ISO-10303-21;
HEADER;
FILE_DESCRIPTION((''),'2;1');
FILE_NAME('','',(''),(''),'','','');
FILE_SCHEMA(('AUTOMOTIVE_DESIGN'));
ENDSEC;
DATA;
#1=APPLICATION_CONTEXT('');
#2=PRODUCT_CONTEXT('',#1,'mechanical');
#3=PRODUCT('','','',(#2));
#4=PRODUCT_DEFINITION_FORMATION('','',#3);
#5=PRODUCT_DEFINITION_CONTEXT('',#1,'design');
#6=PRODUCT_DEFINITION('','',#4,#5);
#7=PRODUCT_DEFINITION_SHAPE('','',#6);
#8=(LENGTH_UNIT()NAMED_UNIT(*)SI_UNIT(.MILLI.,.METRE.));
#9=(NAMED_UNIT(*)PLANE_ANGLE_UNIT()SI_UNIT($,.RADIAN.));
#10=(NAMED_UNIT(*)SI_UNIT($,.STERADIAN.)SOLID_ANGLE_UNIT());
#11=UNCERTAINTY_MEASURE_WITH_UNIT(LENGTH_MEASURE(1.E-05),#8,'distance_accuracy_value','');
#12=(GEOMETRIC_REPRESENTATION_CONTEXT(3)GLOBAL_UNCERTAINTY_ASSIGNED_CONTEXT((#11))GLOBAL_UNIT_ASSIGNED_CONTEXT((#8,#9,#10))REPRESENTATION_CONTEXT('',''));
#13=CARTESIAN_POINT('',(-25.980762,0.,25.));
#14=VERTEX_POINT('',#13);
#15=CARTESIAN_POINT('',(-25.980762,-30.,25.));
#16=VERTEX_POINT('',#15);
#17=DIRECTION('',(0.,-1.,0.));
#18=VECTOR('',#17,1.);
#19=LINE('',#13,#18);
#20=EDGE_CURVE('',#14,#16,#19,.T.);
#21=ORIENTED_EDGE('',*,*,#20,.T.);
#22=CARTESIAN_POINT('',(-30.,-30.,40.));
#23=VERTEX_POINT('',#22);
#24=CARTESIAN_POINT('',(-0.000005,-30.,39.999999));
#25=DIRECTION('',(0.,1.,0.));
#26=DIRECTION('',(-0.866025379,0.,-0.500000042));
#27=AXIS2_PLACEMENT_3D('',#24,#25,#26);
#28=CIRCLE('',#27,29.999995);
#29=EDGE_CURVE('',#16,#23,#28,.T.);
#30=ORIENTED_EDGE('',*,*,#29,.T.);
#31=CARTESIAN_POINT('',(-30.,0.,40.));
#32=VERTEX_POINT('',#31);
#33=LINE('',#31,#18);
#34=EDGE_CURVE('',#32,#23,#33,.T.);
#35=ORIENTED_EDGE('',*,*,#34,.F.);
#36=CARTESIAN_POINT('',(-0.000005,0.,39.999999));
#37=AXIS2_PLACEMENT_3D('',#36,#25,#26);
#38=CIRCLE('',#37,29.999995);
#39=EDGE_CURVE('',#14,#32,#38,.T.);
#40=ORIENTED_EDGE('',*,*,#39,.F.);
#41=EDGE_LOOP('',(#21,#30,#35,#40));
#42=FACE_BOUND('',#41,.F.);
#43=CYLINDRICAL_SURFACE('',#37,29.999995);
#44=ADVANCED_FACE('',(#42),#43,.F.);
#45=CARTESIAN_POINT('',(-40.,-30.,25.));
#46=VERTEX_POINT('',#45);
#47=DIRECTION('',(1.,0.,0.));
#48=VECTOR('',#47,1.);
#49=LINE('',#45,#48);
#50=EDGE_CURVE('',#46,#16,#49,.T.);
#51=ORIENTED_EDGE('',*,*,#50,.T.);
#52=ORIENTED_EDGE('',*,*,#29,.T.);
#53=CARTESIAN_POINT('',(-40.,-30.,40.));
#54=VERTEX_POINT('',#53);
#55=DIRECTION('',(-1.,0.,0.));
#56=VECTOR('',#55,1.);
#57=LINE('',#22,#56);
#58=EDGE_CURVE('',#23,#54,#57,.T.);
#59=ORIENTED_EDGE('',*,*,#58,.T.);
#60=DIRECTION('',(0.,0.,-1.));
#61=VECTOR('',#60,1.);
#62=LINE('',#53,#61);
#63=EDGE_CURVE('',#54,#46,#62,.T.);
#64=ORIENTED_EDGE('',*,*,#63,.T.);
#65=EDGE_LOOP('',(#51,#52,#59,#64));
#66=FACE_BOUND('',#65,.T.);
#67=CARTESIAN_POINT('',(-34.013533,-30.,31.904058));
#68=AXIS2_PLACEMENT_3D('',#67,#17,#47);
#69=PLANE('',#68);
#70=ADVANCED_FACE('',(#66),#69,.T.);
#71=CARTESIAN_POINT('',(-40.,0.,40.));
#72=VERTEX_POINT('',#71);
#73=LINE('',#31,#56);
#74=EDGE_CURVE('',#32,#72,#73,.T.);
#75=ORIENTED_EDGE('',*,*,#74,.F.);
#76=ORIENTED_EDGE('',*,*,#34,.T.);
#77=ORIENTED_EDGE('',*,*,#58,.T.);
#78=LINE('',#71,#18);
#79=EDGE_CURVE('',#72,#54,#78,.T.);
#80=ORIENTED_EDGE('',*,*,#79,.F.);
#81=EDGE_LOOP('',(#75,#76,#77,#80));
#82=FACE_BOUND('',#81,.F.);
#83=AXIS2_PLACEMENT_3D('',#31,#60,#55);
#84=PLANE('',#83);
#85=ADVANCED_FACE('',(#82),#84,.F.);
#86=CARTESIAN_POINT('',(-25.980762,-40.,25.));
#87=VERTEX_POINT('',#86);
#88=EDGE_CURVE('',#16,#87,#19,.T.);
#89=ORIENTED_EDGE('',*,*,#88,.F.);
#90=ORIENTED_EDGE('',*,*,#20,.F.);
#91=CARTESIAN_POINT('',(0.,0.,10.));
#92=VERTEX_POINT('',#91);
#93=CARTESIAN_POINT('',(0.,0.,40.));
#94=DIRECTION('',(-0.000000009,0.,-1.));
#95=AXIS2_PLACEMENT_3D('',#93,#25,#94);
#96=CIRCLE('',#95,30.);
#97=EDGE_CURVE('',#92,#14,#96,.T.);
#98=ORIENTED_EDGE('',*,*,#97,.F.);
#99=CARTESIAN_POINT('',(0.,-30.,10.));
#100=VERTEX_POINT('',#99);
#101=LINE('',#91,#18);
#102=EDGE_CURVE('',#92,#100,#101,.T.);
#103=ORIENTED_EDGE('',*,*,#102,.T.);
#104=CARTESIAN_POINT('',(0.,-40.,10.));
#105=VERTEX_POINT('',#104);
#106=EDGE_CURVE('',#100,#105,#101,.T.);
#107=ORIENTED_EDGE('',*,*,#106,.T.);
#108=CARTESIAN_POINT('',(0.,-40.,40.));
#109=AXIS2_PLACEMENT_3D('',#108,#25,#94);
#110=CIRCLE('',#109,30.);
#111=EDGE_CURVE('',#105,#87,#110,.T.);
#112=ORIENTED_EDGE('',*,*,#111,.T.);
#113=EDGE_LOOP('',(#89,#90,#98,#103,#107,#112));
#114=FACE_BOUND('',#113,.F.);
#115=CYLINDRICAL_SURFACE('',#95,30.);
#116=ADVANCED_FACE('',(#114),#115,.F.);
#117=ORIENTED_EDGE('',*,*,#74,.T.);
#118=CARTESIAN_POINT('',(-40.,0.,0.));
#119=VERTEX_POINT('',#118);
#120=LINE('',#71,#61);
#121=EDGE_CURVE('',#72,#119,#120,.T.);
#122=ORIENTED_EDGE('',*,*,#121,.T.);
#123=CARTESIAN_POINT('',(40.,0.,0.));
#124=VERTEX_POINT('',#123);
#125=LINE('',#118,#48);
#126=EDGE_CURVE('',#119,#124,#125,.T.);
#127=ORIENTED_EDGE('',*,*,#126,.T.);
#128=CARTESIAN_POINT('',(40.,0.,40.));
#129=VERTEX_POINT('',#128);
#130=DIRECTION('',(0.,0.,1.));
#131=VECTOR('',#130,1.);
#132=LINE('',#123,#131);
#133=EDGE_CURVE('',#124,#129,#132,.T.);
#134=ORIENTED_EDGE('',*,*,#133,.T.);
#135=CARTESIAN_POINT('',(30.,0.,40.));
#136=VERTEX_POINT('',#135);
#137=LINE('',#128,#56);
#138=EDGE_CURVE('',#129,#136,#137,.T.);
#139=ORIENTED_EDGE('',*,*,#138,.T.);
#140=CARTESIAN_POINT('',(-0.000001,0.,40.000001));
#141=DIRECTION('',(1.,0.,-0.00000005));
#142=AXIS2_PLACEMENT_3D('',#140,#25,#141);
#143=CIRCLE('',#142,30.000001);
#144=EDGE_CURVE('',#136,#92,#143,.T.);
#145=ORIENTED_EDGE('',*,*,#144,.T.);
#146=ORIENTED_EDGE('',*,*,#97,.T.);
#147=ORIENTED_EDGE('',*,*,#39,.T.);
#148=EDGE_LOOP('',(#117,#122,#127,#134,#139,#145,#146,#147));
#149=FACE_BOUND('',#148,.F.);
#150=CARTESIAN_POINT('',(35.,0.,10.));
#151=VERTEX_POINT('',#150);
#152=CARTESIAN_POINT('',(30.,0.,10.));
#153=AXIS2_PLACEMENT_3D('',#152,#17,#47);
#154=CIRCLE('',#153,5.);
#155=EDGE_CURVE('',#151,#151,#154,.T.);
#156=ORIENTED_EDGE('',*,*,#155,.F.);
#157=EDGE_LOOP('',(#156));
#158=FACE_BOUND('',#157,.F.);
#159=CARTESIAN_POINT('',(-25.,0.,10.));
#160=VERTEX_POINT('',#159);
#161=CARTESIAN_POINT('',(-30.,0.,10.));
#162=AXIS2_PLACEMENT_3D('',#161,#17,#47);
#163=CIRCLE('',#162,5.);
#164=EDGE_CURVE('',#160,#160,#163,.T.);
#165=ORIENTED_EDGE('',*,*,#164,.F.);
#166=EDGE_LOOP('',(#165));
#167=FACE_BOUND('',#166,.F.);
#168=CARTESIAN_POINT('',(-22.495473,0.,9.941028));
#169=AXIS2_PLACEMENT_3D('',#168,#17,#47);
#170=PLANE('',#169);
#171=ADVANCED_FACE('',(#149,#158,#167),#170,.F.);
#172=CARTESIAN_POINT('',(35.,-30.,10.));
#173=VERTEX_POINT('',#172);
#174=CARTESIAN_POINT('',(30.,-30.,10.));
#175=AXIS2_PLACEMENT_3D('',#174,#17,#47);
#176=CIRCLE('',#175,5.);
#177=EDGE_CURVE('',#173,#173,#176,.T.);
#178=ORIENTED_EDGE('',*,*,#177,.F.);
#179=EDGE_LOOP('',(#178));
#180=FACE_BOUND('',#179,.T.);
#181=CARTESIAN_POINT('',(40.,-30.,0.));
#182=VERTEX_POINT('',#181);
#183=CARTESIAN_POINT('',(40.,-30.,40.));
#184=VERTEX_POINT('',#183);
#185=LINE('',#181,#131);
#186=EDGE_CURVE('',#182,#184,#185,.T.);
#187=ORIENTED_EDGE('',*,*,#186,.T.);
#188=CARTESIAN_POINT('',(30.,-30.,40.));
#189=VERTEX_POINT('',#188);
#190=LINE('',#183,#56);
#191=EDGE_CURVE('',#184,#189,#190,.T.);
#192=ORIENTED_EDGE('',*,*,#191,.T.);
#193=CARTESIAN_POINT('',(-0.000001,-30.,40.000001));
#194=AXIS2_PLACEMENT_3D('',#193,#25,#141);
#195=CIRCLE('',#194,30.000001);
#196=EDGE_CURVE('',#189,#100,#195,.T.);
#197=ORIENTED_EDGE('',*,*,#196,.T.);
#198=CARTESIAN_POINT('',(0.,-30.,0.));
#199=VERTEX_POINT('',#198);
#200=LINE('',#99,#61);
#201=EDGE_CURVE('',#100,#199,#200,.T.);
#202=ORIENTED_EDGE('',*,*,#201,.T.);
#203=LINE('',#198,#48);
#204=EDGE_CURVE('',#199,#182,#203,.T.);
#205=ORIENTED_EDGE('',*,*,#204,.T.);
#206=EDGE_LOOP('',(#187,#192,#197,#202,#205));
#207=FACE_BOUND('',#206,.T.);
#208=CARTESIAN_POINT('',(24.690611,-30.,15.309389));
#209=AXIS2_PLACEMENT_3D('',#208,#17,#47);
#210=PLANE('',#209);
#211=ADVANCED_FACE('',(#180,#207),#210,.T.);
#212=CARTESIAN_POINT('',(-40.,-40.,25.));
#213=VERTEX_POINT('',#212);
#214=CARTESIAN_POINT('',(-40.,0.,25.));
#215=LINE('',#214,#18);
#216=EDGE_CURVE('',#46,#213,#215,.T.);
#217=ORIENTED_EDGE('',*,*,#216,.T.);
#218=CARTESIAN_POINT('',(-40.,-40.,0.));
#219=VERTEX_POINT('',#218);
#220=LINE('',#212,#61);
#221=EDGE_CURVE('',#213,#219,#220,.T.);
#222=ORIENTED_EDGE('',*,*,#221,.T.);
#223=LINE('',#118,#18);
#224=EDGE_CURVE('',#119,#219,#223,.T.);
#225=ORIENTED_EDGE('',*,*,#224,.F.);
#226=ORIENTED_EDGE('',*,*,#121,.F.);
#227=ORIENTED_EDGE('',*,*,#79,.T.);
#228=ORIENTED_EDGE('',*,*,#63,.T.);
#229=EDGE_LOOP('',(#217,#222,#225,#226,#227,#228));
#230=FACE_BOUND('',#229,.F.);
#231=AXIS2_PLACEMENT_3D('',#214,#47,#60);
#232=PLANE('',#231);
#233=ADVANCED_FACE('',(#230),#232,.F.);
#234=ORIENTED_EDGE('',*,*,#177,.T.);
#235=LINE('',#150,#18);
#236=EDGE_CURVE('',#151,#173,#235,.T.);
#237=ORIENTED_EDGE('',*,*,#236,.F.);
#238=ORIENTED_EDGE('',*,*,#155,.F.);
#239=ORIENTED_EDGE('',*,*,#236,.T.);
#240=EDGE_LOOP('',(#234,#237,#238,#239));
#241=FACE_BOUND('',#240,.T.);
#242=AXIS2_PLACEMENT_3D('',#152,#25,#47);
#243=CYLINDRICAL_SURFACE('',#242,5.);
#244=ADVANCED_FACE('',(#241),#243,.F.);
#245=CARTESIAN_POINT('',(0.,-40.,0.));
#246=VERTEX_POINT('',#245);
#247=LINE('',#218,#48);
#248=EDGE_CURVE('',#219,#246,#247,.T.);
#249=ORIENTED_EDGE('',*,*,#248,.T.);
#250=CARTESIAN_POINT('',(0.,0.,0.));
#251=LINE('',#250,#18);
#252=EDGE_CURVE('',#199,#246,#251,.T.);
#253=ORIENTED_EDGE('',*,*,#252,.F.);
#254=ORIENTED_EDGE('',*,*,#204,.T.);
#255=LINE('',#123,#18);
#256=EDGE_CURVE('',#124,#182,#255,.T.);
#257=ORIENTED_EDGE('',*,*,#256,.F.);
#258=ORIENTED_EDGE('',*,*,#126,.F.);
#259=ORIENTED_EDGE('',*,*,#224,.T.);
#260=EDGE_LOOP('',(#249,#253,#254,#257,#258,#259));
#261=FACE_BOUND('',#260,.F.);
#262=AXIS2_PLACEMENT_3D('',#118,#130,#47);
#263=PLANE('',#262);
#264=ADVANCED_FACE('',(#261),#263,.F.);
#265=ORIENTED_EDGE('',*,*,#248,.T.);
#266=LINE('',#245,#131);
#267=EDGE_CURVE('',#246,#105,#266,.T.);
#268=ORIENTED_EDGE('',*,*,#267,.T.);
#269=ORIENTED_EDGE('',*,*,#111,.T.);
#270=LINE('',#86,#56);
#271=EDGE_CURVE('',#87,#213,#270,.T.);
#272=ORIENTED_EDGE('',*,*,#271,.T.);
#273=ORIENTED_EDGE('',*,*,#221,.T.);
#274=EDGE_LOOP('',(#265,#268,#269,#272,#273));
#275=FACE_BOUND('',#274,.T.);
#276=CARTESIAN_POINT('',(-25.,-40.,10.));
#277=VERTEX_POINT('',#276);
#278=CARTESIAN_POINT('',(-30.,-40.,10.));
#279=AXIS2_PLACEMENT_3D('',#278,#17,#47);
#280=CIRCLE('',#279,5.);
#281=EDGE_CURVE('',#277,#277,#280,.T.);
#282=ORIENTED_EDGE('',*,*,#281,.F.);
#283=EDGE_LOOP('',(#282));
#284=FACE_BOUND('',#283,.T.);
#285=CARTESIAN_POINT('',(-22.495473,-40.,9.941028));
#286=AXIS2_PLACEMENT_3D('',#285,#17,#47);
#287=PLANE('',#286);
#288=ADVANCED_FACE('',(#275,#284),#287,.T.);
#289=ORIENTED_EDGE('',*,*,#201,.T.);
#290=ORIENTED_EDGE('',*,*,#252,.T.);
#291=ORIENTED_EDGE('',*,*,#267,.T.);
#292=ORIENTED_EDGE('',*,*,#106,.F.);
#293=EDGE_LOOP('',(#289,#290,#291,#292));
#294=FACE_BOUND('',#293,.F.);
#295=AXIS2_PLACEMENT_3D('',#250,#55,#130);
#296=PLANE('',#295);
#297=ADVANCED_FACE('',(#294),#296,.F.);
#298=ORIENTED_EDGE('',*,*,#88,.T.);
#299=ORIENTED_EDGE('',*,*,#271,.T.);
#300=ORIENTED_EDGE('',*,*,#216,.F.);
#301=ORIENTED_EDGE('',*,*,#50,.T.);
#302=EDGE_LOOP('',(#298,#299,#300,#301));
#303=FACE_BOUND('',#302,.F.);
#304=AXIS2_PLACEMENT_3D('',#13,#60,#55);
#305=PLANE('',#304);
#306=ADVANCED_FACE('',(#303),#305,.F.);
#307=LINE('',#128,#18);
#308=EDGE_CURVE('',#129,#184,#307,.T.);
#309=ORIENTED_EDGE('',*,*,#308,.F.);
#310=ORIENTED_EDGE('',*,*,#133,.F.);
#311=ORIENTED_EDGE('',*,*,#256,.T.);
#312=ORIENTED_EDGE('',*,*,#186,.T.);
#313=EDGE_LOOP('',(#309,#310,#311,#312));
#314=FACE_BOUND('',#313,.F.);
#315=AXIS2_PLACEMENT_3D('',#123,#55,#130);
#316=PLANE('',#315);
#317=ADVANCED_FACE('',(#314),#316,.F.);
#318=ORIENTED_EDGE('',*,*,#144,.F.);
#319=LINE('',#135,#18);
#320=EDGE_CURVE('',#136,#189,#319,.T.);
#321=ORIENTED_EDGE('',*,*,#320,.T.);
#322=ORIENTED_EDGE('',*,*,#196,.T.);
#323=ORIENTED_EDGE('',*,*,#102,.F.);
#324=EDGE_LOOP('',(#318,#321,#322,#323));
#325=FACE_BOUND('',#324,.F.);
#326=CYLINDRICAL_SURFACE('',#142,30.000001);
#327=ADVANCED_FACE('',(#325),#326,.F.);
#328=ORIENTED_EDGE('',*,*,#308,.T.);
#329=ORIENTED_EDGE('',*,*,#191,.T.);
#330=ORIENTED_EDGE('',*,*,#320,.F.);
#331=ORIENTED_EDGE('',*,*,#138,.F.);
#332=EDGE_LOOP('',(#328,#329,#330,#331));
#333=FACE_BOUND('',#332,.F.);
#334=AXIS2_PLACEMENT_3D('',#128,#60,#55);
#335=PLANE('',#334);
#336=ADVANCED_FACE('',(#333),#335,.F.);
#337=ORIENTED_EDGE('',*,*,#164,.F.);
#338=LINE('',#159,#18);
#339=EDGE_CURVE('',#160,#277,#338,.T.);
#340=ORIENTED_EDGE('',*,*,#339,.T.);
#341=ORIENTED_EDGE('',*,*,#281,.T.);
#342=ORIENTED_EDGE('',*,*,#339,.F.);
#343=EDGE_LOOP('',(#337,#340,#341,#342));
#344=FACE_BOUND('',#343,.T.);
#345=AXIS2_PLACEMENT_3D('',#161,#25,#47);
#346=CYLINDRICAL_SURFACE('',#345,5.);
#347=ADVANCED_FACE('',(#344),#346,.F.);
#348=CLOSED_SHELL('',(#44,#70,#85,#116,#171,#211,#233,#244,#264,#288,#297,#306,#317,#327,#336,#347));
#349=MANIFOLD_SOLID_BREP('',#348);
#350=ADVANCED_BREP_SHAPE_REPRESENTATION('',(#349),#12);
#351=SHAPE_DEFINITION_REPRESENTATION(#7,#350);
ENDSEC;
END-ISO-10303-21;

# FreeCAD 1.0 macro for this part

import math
import FreeCAD as App
import Part
import Sketcher
Q = App.Units.Quantity

doc = App.newDocument("Part")
body = doc.addObject("PartDesign::Body", "Body")
body.AllowCompound = True

# Sketch on XZ plane
sketch1 = doc.addObject("Sketcher::SketchObject", "Sketch")
body.addObject(sketch1)
sketch1.AttachmentSupport = (doc.XZ_Plane, [""])
sketch1.MapMode = "FlatFace"
sketch1.addGeometry([
    Part.LineSegment(App.Vector(-30, 40, 0), App.Vector(-40, 40, 0)),  # 0
    Part.LineSegment(App.Vector(-40, 40, 0), App.Vector(-40, 25, 0)),  # 1
    Part.LineSegment(App.Vector(-40, 25, 0), App.Vector(-26, 25, 0)),  # 2
    Part.ArcOfCircle(Part.Circle(App.Vector(0, 40, 0), App.Vector(0, 0, 1), 30), math.radians(180), math.radians(210)),  # 3
    Part.LineSegment(App.Vector(0, 10, 0), App.Vector(0, 0, 0)),  # 4
    Part.LineSegment(App.Vector(0, 0, 0), App.Vector(40, 0, 0)),  # 5
    Part.LineSegment(App.Vector(40, 0, 0), App.Vector(40, 40, 0)),  # 6
    Part.LineSegment(App.Vector(40, 40, 0), App.Vector(30, 40, 0)),  # 7
    Part.ArcOfCircle(Part.Circle(App.Vector(0, 40, 0), App.Vector(0, 0, 1), 30), math.radians(-90), math.radians(0)),  # 8
    Part.Circle(App.Vector(30, 10, 0), App.Vector(0, 0, 1), 5),  # 9
], False)
sketch1.addConstraint([
    Sketcher.Constraint("Coincident", 0, 2, 1, 1),
    Sketcher.Constraint("Coincident", 1, 2, 2, 1),
    Sketcher.Constraint("Coincident", 2, 2, 3, 2),
    Sketcher.Constraint("Coincident", 3, 1, 0, 1),
    Sketcher.Constraint("Coincident", 4, 2, 5, 1),
    Sketcher.Constraint("Coincident", 5, 2, 6, 1),
    Sketcher.Constraint("Coincident", 6, 2, 7, 1),
    Sketcher.Constraint("Coincident", 7, 2, 8, 2),
    Sketcher.Constraint("Coincident", 8, 1, 4, 1),
    Sketcher.Constraint("Horizontal", 0),
    Sketcher.Constraint("Vertical", 1),
    Sketcher.Constraint("Horizontal", 2),
    Sketcher.Constraint("Vertical", 4),
    Sketcher.Constraint("Horizontal", 5),
    Sketcher.Constraint("Vertical", 6),
    Sketcher.Constraint("Horizontal", 7),
    Sketcher.Constraint("Coincident", 4, 2, -1, 1),
    Sketcher.Constraint("Coincident", 8, 3, 3, 3),
    Sketcher.Constraint("Symmetric", 0, 2, 6, 2, -2),
    Sketcher.Constraint("PointOnObject", 8, 3, -2),
    Sketcher.Constraint("Horizontal", 8, 3, 0, 2),
    Sketcher.Constraint("Horizontal", 9, 3, 8, 1),
    Sketcher.Constraint("Vertical", 9, 3, 7, 2),
    Sketcher.Constraint("Equal", 0, 7),
    Sketcher.Constraint("Equal", 7, 4),
    Sketcher.Constraint("Diameter", 9, Q("10 mm")),
    Sketcher.Constraint("Radius", 8, Q("30.000001 mm")),
    Sketcher.Constraint("DistanceX", 0, 2, 0, 1, Q("10 mm")),
    Sketcher.Constraint("DistanceY", 1, 2, 1, 1, Q("15 mm")),
])
pad1 = doc.addObject("PartDesign::Pad", "Pad")
body.addObject(pad1)
pad1.Profile = sketch1
pad1.Length = 30

# Sketch on XZ plane
sketch2 = doc.addObject("Sketcher::SketchObject", "Sketch001")
body.addObject(sketch2)
sketch2.AttachmentSupport = (doc.XZ_Plane, [""])
sketch2.MapMode = "FlatFace"
sketch2.addGeometry([
    Part.LineSegment(App.Vector(-26, 25, 0), App.Vector(-40, 25, 0)),  # 0
    Part.LineSegment(App.Vector(-40, 25, 0), App.Vector(-40, 0, 0)),  # 1
    Part.LineSegment(App.Vector(-40, 0, 0), App.Vector(0, 0, 0)),  # 2
    Part.LineSegment(App.Vector(0, 0, 0), App.Vector(0, 10, 0)),  # 3
    Part.ArcOfCircle(Part.Circle(App.Vector(0, 40, 0), App.Vector(0, 0, 1), 30), math.radians(-150), math.radians(-90)),  # 4
    Part.Circle(App.Vector(-30, 10, 0), App.Vector(0, 0, 1), 5),  # 5
], False)
sketch2.addConstraint([
    Sketcher.Constraint("Coincident", 0, 2, 1, 1),
    Sketcher.Constraint("Coincident", 1, 2, 2, 1),
    Sketcher.Constraint("Coincident", 2, 2, 3, 1),
    Sketcher.Constraint("Coincident", 3, 2, 4, 2),
    Sketcher.Constraint("Coincident", 4, 1, 0, 1),
    Sketcher.Constraint("Horizontal", 0),
    Sketcher.Constraint("Vertical", 1),
    Sketcher.Constraint("Horizontal", 2),
    Sketcher.Constraint("Vertical", 3),
    Sketcher.Constraint("Coincident", 2, 2, -1, 1),
    Sketcher.Constraint("PointOnObject", 4, 3, -2),
    Sketcher.Constraint("Horizontal", 5, 3, 3, 2),
    Sketcher.Constraint("Diameter", 5, Q("10 mm")),
    Sketcher.Constraint("Radius", 4, Q("30 mm")),
    Sketcher.Constraint("DistanceX", 2, 1, 2, 2, Q("40 mm")),
    Sketcher.Constraint("DistanceY", 1, 2, 1, 1, Q("25 mm")),
    Sketcher.Constraint("DistanceY", 3, 1, 3, 2, Q("10 mm")),
    Sketcher.Constraint("DistanceX", 5, 3, -1, 1, Q("30 mm")),
])
pad2 = doc.addObject("PartDesign::Pad", "Pad001")
body.addObject(pad2)
pad2.Profile = sketch2
pad2.Length = 40

doc.recompute()
